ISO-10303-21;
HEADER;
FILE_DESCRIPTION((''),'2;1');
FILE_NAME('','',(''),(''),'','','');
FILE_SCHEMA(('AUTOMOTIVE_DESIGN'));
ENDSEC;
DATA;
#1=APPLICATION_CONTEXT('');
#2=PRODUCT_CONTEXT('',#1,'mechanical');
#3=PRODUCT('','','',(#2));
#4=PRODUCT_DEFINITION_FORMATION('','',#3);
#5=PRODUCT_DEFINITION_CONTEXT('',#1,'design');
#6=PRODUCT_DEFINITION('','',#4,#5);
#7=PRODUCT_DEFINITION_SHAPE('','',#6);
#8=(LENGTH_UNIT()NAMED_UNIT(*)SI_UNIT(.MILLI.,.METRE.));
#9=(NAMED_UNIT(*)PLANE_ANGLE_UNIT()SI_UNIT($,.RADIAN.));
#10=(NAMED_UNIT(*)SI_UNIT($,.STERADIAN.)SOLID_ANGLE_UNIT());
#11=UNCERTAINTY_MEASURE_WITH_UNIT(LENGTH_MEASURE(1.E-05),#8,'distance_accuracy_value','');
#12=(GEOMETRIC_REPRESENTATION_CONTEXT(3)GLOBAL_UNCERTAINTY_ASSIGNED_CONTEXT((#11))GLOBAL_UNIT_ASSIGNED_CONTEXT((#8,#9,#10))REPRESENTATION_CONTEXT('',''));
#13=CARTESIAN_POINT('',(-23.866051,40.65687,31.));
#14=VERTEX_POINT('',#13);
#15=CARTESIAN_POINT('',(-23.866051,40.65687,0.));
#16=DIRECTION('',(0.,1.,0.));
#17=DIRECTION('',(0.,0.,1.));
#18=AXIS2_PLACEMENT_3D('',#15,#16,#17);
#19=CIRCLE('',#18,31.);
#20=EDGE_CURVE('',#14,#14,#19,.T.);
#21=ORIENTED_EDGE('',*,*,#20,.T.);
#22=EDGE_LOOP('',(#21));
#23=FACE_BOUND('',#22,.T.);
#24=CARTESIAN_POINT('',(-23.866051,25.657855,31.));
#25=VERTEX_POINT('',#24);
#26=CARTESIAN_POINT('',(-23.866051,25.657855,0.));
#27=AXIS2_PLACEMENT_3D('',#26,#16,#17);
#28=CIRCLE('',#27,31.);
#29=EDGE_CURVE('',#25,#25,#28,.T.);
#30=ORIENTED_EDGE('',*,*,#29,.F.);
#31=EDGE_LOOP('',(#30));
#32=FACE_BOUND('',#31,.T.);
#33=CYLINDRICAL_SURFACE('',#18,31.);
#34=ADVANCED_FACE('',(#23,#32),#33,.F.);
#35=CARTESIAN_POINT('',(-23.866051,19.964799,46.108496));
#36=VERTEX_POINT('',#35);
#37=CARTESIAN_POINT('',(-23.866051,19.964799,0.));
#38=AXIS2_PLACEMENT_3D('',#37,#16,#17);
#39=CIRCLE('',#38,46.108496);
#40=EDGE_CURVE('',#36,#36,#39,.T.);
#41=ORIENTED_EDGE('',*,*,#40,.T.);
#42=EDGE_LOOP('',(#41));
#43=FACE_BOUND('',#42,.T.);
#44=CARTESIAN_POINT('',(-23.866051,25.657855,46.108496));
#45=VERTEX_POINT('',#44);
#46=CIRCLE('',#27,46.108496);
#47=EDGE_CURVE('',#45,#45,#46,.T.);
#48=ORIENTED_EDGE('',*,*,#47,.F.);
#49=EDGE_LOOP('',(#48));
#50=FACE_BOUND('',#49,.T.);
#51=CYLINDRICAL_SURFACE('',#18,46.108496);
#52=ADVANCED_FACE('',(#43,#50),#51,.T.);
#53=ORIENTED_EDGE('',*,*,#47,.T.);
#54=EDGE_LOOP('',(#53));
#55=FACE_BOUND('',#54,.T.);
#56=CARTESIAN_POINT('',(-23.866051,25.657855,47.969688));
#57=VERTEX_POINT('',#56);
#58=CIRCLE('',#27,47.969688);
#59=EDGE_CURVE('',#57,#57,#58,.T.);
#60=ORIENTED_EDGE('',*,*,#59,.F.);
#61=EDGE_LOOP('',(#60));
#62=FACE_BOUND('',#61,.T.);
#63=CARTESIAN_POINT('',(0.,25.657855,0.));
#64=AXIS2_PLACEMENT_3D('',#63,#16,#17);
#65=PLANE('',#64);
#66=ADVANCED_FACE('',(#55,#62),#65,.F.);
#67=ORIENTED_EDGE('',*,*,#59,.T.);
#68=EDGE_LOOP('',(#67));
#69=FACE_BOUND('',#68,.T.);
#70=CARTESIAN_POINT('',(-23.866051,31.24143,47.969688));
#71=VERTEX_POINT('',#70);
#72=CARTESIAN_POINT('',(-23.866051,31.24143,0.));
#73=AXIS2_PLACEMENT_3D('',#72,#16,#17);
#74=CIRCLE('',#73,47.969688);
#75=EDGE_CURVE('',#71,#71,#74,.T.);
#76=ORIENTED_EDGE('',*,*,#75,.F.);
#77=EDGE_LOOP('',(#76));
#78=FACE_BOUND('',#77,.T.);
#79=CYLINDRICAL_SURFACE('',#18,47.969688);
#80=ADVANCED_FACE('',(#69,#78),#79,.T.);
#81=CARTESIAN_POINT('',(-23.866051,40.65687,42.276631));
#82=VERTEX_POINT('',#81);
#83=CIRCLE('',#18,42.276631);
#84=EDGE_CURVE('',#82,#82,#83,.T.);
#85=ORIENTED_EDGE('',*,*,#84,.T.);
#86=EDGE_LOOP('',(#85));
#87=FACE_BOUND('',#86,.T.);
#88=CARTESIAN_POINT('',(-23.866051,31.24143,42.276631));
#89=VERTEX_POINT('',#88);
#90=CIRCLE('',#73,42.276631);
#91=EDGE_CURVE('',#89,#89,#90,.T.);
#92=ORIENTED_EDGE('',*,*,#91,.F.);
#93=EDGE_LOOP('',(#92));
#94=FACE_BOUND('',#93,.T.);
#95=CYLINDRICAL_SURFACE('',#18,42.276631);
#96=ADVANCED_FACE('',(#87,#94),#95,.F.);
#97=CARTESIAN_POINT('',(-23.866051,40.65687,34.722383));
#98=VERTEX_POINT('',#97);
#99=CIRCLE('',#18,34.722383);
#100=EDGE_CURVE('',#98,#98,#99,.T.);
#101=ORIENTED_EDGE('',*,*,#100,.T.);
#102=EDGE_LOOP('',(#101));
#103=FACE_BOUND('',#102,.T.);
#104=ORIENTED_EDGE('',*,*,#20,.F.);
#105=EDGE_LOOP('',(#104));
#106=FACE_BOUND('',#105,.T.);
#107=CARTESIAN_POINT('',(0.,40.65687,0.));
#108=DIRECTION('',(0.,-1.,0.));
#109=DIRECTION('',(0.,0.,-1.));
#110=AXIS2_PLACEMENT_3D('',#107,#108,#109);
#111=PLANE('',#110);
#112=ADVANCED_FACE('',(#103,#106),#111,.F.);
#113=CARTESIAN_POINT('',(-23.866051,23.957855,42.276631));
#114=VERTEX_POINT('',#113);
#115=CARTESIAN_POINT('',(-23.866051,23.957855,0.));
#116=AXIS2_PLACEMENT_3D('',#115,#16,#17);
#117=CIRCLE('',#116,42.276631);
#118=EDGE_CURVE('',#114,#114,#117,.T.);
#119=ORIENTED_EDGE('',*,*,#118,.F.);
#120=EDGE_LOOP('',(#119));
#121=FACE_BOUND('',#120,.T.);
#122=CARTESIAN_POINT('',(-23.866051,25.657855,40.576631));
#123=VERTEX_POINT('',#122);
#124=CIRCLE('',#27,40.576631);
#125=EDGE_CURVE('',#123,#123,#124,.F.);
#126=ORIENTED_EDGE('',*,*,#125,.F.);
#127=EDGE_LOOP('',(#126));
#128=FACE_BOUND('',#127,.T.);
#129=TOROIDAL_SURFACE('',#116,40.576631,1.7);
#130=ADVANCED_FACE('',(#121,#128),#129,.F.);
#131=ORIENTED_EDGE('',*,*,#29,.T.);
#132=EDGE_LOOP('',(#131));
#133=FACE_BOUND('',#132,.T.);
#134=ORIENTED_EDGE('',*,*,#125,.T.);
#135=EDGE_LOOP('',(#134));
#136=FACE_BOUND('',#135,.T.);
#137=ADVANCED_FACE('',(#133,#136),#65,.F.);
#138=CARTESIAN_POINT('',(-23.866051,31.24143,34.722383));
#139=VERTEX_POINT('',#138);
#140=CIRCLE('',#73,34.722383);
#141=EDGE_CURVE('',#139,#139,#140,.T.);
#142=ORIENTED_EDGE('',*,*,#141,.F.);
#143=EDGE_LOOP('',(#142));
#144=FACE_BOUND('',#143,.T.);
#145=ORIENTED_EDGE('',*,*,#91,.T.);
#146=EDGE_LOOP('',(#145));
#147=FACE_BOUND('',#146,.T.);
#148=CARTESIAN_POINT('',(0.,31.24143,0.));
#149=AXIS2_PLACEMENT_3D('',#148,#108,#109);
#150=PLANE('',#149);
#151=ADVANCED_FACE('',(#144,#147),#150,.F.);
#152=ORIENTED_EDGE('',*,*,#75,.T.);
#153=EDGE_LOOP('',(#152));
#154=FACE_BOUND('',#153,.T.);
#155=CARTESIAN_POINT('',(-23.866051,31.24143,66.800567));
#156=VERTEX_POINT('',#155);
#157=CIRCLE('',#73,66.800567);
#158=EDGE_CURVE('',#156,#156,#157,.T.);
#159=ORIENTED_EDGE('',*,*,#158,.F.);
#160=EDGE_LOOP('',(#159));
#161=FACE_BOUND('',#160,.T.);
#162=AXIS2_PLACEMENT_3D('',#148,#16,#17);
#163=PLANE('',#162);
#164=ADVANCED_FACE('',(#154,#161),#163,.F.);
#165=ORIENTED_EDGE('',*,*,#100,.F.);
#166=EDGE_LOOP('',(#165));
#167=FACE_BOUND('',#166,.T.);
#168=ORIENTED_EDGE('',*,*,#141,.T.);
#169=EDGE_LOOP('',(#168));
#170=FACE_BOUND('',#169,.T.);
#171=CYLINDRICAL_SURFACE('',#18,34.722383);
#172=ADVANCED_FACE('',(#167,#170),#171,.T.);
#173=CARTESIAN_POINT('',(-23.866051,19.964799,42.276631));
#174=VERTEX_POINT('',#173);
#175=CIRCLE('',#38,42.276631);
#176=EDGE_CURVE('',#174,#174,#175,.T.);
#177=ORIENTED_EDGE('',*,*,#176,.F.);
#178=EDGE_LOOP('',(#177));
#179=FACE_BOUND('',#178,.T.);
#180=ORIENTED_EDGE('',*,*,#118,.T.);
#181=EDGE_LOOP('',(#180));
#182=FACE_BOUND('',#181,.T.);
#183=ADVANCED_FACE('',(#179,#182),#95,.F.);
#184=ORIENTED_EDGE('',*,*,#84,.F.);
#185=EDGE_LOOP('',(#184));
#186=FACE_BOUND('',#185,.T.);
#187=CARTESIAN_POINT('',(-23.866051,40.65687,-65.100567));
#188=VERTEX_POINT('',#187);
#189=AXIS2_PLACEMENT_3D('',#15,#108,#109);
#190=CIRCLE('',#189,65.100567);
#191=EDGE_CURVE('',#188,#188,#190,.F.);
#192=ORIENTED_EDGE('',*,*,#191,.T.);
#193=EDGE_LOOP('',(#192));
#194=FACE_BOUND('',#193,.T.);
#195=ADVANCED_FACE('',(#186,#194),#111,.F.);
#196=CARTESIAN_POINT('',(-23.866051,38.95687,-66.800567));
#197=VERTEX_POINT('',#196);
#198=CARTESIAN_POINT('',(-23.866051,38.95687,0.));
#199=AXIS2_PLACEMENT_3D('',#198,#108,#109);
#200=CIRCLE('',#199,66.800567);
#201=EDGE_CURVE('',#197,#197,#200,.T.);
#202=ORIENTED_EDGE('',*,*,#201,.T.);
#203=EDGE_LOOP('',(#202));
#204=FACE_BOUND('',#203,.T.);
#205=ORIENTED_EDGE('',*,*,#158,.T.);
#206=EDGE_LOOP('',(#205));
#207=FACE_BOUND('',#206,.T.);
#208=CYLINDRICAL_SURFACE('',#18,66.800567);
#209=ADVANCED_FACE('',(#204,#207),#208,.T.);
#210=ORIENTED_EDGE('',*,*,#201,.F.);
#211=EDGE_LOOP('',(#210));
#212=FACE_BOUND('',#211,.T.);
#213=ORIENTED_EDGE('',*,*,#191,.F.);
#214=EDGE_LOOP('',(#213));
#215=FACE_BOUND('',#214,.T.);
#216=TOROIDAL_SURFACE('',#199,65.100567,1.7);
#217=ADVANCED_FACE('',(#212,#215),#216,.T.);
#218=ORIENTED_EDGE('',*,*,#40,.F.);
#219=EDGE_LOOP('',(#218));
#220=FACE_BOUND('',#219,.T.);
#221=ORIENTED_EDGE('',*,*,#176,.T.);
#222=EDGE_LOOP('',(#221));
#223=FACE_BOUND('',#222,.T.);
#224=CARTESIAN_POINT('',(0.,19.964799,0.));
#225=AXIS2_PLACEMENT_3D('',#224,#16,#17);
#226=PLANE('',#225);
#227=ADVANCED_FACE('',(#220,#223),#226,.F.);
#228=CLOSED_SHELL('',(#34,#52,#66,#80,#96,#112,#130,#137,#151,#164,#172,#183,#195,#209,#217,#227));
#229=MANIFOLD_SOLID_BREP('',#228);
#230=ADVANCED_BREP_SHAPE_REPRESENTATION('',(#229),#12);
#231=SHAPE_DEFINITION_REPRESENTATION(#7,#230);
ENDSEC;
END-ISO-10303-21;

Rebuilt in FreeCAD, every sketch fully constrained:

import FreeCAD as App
import Part
import Sketcher


def edges_at(feature, points):
    """Names of the edges that pass closest to the given points."""
    edges = feature.Shape.Edges
    near = lambda p: min(range(len(edges)), key=lambda i: edges[i].distToShape(Part.Vertex(*p))[0])
    return sorted({f"Edge{near(p) + 1}" for p in points})


def add_polygon(sketch, points):
    """Adds a closed chain of lines whose ends are joined by coincident constraints."""
    first, n = sketch.GeometryCount, len(points)
    for a, b in zip(points, points[1:] + points[:1]):
        sketch.addGeometry(Part.LineSegment(App.Vector(*a, 0), App.Vector(*b, 0)), False)
    for i in range(n):
        sketch.addConstraint(Sketcher.Constraint("Coincident", first + i, 2, first + (i + 1) % n, 1))

doc = App.newDocument("Part")
body = doc.addObject("PartDesign::Body", "Body")

sketch1 = body.newObject("Sketcher::SketchObject", "Sketch")
sketch1.AttachmentSupport = (doc.getObject("XY_Plane"), [""])
sketch1.MapMode = "FlatFace"
add_polygon(sketch1, [(-71.8, 31.2), (-71.8, 25.7), (-70, 25.7), (-70, 20), (-66.1, 20), (-66.1, 25.7), (-54.9, 25.7), (-54.9, 40.7), (-58.6, 40.7), (-58.6, 31.2), (-66.1, 31.2), (-66.1, 40.7), (-90.7, 40.7), (-90.7, 31.2)])
sketch1.addGeometry(Part.LineSegment(App.Vector(-23.9, 40.7, 0), App.Vector(-23.9, 20, 0)), True)
sketch1.addConstraint(Sketcher.Constraint("Vertical", 0))
sketch1.addConstraint(Sketcher.Constraint("Horizontal", 1))
sketch1.addConstraint(Sketcher.Constraint("Vertical", 2))
sketch1.addConstraint(Sketcher.Constraint("Horizontal", 3))
sketch1.addConstraint(Sketcher.Constraint("Vertical", 4))
sketch1.addConstraint(Sketcher.Constraint("Horizontal", 5))
sketch1.addConstraint(Sketcher.Constraint("Vertical", 6))
sketch1.addConstraint(Sketcher.Constraint("Horizontal", 7))
sketch1.addConstraint(Sketcher.Constraint("Vertical", 8))
sketch1.addConstraint(Sketcher.Constraint("Horizontal", 9))
sketch1.addConstraint(Sketcher.Constraint("Vertical", 10))
sketch1.addConstraint(Sketcher.Constraint("Horizontal", 11))
sketch1.addConstraint(Sketcher.Constraint("Vertical", 12))
sketch1.addConstraint(Sketcher.Constraint("Horizontal", 13))
sketch1.addConstraint(Sketcher.Constraint("Vertical", 14))
sketch1.addConstraint(Sketcher.Constraint("Horizontal", 1, 2, 4, 2))
sketch1.addConstraint(Sketcher.Constraint("Horizontal", 7, 2, 10, 2))
sketch1.addConstraint(Sketcher.Constraint("Horizontal", 9, 2, 12, 2))
sketch1.addConstraint(Sketcher.Constraint("Horizontal", 11, 2, 14, 1))
sketch1.addConstraint(Sketcher.Constraint("Horizontal", 3, 2, 14, 2))
sketch1.addConstraint(Sketcher.Constraint("Vertical", 4, 2, 9, 2))
sketch1.addConstraint(Sketcher.Constraint("DistanceX", 6, 2, 14, 1, 31.0))
sketch1.addConstraint(Sketcher.Constraint("DistanceX", 1, 1, 1, 2, 1.861192))
sketch1.addConstraint(Sketcher.Constraint("DistanceX", 5, 1, 5, 2, 11.276631))
sketch1.addConstraint(Sketcher.Constraint("DistanceX", 9, 2, 9, 1, 7.554248))
sketch1.addConstraint(Sketcher.Constraint("DistanceX", 13, 1, 13, 2, 18.830879))
sketch1.addConstraint(Sketcher.Constraint("DistanceY", 8, 2, 8, 1, 9.41544))
sketch1.addConstraint(Sketcher.Constraint("DistanceY", 14, 2, 14, 1, 20.692071))
sketch1.addConstraint(Sketcher.Constraint("DistanceY", -1, 1, 2, 2, 19.964799))
sketch1.addConstraint(Sketcher.Constraint("DistanceX", 3, 1, 3, 2, 3.831865))
sketch1.addConstraint(Sketcher.Constraint("DistanceY", 0, 2, 0, 1, 5.583575))
sketch1.addConstraint(Sketcher.Constraint("DistanceX", 0, 2, -1, 1, 71.835739))
revolution = body.newObject("PartDesign::Revolution", "Revolution")
revolution.Profile = sketch1
revolution.ReferenceAxis = (sketch1, ["Axis0"])
revolution.Angle = 360
doc.recompute()

fillet = body.newObject("PartDesign::Fillet", "Fillet")
fillet.Base = (revolution, edges_at(revolution, [(42.935, 40.657, 0)]))
fillet.Radius = 1.7
doc.recompute()

fillet2 = body.newObject("PartDesign::Fillet", "Fillet001")
fillet2.Base = (fillet, edges_at(fillet, [(18.411, 25.658, 0)]))
fillet2.Radius = 1.7

doc.recompute()
